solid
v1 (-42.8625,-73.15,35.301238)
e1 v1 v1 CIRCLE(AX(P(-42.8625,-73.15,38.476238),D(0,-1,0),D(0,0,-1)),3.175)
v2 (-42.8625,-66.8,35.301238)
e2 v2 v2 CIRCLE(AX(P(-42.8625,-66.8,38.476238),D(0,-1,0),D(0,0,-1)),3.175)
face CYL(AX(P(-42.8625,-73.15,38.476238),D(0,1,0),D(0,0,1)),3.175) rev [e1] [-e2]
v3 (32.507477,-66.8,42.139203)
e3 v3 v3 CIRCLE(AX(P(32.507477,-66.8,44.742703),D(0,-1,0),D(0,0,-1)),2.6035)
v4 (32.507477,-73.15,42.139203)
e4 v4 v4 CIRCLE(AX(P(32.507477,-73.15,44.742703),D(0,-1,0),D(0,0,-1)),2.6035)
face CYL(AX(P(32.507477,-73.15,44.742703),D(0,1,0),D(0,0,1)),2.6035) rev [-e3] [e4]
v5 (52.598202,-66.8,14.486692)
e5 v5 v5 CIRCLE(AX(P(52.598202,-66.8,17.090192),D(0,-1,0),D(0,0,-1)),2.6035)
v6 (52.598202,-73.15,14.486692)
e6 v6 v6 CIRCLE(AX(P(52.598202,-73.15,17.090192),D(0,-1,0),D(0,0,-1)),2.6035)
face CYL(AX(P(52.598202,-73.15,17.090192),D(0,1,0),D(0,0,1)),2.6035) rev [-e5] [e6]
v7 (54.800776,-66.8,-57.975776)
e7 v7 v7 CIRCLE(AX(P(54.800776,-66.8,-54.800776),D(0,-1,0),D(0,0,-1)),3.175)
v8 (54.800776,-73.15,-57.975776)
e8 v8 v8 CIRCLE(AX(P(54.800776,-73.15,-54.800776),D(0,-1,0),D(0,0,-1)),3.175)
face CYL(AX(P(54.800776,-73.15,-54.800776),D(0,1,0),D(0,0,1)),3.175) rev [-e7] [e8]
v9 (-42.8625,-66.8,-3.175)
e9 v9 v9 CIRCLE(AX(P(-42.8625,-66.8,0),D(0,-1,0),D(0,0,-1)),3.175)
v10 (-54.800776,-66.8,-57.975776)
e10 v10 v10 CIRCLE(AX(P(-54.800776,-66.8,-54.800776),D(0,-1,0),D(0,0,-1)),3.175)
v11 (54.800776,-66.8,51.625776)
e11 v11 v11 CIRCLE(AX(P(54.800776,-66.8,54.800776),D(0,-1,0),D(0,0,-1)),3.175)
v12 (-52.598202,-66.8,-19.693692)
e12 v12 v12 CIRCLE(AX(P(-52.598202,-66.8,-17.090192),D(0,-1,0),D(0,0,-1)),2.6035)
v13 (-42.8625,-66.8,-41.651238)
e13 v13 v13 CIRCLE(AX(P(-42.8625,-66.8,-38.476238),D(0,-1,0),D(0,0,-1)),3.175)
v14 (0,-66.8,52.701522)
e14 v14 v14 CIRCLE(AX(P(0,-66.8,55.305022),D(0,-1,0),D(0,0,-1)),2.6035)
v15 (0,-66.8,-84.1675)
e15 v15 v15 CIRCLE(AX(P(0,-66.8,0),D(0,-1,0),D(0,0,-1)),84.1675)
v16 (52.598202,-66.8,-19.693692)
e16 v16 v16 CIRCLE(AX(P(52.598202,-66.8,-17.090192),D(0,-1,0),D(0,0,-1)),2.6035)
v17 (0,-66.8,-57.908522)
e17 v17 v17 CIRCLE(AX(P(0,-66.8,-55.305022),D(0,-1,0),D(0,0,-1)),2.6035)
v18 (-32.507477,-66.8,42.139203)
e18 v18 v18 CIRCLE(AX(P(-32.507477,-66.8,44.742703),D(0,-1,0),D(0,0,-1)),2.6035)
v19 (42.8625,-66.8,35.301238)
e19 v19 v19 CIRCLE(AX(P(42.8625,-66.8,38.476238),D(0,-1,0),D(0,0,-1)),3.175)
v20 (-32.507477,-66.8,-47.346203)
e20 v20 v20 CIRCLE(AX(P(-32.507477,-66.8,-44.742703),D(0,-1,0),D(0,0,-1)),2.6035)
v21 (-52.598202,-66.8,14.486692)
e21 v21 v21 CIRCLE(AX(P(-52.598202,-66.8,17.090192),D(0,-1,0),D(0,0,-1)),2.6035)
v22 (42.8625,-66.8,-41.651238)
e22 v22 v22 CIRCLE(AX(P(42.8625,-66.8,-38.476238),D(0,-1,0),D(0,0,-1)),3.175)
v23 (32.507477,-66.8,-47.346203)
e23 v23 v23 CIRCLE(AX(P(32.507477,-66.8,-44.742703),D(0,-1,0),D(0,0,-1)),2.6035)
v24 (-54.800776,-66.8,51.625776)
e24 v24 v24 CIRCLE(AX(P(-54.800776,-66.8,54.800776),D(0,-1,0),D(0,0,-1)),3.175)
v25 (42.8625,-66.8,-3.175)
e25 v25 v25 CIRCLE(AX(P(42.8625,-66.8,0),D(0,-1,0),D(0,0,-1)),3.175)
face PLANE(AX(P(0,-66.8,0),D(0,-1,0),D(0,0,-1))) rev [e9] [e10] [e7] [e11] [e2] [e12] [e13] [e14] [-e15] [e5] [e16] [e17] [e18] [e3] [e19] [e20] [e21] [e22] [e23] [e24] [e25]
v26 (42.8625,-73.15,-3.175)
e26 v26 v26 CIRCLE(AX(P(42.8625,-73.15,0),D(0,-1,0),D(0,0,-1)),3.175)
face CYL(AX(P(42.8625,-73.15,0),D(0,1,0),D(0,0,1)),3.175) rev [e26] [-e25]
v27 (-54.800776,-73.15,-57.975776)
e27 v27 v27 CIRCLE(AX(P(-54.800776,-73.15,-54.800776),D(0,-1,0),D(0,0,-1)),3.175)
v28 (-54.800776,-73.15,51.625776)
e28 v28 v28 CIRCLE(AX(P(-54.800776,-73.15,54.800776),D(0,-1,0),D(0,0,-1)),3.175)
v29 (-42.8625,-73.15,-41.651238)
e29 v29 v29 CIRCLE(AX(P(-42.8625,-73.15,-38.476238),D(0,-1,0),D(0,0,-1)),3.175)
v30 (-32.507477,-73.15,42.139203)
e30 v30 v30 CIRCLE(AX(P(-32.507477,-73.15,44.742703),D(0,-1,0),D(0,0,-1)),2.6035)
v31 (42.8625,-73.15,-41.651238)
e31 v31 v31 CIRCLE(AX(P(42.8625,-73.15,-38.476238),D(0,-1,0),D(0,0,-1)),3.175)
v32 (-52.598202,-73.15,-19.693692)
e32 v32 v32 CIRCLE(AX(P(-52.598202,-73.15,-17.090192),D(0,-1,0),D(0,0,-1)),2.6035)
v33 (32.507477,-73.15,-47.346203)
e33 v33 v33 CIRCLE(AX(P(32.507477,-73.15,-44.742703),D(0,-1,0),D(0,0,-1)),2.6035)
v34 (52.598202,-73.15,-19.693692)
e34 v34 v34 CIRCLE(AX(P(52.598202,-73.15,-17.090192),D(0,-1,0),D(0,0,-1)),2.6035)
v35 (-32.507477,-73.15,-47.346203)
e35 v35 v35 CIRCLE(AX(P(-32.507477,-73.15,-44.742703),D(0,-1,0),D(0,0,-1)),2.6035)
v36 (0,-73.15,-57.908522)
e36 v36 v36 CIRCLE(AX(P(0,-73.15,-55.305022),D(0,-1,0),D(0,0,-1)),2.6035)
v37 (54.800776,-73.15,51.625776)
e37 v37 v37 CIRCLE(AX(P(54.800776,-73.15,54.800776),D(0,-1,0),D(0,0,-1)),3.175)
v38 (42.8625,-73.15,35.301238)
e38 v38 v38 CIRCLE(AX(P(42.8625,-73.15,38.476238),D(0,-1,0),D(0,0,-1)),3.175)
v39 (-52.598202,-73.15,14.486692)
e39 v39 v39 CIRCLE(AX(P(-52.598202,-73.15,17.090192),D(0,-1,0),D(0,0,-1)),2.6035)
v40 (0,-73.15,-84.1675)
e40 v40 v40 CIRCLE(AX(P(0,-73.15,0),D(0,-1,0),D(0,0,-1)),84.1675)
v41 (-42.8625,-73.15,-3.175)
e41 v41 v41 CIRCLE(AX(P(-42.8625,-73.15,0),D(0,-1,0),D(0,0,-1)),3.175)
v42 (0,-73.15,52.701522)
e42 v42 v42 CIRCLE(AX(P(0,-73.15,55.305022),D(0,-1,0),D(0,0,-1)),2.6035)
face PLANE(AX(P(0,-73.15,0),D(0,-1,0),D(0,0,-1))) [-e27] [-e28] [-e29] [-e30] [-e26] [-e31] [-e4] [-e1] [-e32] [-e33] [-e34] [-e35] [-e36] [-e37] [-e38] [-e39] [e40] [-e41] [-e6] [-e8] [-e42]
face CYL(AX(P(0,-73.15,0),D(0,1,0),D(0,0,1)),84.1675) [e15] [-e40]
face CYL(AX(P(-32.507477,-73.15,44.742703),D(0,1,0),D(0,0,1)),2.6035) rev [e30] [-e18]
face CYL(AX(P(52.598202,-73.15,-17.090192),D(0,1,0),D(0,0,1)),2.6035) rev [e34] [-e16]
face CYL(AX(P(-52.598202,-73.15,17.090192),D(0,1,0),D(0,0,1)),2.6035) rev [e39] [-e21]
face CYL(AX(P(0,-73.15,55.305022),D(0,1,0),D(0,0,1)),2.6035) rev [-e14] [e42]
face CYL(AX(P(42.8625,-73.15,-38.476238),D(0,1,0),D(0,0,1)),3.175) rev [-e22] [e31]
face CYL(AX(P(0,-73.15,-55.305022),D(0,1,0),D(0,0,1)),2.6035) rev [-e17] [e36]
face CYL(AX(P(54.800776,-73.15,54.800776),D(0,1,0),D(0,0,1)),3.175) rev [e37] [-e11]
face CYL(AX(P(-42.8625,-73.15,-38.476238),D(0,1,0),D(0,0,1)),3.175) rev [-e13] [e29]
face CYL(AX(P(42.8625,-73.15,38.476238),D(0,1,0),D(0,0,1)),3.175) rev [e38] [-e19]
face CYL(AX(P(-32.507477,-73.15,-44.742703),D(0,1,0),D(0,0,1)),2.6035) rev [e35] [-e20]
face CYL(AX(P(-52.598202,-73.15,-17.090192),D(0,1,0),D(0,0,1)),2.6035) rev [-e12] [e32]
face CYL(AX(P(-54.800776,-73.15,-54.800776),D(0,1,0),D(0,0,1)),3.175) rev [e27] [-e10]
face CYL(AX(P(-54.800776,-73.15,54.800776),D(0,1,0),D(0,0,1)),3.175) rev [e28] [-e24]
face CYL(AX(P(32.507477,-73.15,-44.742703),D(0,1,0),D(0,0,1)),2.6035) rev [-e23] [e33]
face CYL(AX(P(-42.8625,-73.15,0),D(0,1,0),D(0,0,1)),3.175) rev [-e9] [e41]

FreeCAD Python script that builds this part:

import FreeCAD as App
import Part
import Sketcher
from FreeCAD import Vector
Q = App.Units.Quantity

doc = App.newDocument("Part")
body = doc.addObject("PartDesign::Body", "Body")

# Sketch on XZ plane
sketch1 = body.newObject("Sketcher::SketchObject", "Sketch")
sketch1.AttachmentSupport = (doc.getObject("XZ_Plane"), [""])
sketch1.MapMode = "FlatFace"
sketch1.AttachmentOffset = App.Placement(Vector(0, 0, 66.8), App.Rotation())
sketch1.addGeometry([
    Part.Circle(Vector(0, 0, 0), Vector(0, 0, 1), 84.1675),  # 0
    Part.Circle(Vector(-54.800776, 54.800776, 0), Vector(0, 0, 1), 3.175),  # 1
    Part.Circle(Vector(-32.507477, 44.742703, 0), Vector(0, 0, 1), 2.6035),  # 2
    Part.Circle(Vector(-42.8625, 38.476238, 0), Vector(0, 0, 1), 3.175),  # 3
    Part.Circle(Vector(-52.598202, 17.090192, 0), Vector(0, 0, 1), 2.6035),  # 4
    Part.Circle(Vector(0, 55.305022, 0), Vector(0, 0, 1), 2.6035),  # 5
    Part.Circle(Vector(-52.598202, -17.090192, 0), Vector(0, 0, 1), 2.6035),  # 6
    Part.Circle(Vector(-42.8625, 0, 0), Vector(0, 0, 1), 3.175),  # 7
    Part.Circle(Vector(-54.800776, -54.800776, 0), Vector(0, 0, 1), 3.175),  # 8
    Part.Circle(Vector(-42.8625, -38.476238, 0), Vector(0, 0, 1), 3.175),  # 9
    Part.Circle(Vector(-32.507477, -44.742703, 0), Vector(0, 0, 1), 2.6035),  # 10
    Part.Circle(Vector(32.507477, 44.742703, 0), Vector(0, 0, 1), 2.6035),  # 11
    Part.Circle(Vector(42.8625, 38.476238, 0), Vector(0, 0, 1), 3.175),  # 12
    Part.Circle(Vector(54.800776, 54.800776, 0), Vector(0, 0, 1), 3.175),  # 13
    Part.Circle(Vector(42.8625, 0, 0), Vector(0, 0, 1), 3.175),  # 14
    Part.Circle(Vector(52.598202, 17.090192, 0), Vector(0, 0, 1), 2.6035),  # 15
    Part.Circle(Vector(0, -55.305022, 0), Vector(0, 0, 1), 2.6035),  # 16
    Part.Circle(Vector(52.598202, -17.090192, 0), Vector(0, 0, 1), 2.6035),  # 17
    Part.Circle(Vector(42.8625, -38.476238, 0), Vector(0, 0, 1), 3.175),  # 18
    Part.Circle(Vector(32.507477, -44.742703, 0), Vector(0, 0, 1), 2.6035),  # 19
    Part.Circle(Vector(54.800776, -54.800776, 0), Vector(0, 0, 1), 3.175),  # 20
], False)
sketch1.addConstraint([
    Sketcher.Constraint("Coincident", 0, 3, -1, 1),
    Sketcher.Constraint("Equal", 1, 3),
    Sketcher.Constraint("Equal", 2, 4),
    Sketcher.Constraint("Equal", 4, 5),
    Sketcher.Constraint("Equal", 5, 6),
    Sketcher.Constraint("Equal", 3, 7),
    Sketcher.Constraint("Equal", 7, 8),
    Sketcher.Constraint("Equal", 8, 9),
    Sketcher.Constraint("Equal", 6, 10),
    Sketcher.Constraint("Equal", 10, 11),
    Sketcher.Constraint("Equal", 9, 12),
    Sketcher.Constraint("Equal", 12, 13),
    Sketcher.Constraint("Equal", 13, 14),
    Sketcher.Constraint("Equal", 11, 15),
    Sketcher.Constraint("Equal", 15, 16),
    Sketcher.Constraint("Equal", 16, 17),
    Sketcher.Constraint("Equal", 14, 18),
    Sketcher.Constraint("Equal", 17, 19),
    Sketcher.Constraint("Equal", 18, 20),
    Sketcher.Constraint("Symmetric", 10, 3, 11, 3, -1, 1),
    Sketcher.Constraint("Symmetric", 9, 3, 12, 3, -1, 1),
    Sketcher.Constraint("Symmetric", 8, 3, 13, 3, -1, 1),
    Sketcher.Constraint("Symmetric", 7, 3, 14, 3, -1, 1),
    Sketcher.Constraint("Symmetric", 6, 3, 15, 3, -1, 1),
    Sketcher.Constraint("Symmetric", 5, 3, 16, 3, -1, 1),
    Sketcher.Constraint("Symmetric", 4, 3, 17, 3, -1, 1),
    Sketcher.Constraint("Symmetric", 3, 3, 18, 3, -1, 1),
    Sketcher.Constraint("Symmetric", 2, 3, 19, 3, -1, 1),
    Sketcher.Constraint("Symmetric", 1, 3, 20, 3, -1, 1),
    Sketcher.Constraint("Symmetric", 2, 3, 11, 3, -2),
    Sketcher.Constraint("Symmetric", 3, 3, 12, 3, -2),
    Sketcher.Constraint("Symmetric", 1, 3, 13, 3, -2),
    Sketcher.Constraint("Symmetric", 4, 3, 15, 3, -2),
    Sketcher.Constraint("PointOnObject", 5, 3, -2),
    Sketcher.Constraint("PointOnObject", 7, 3, -1),
    Sketcher.Constraint("Vertical", 3, 3, 7, 3),
    Sketcher.Constraint("Diameter", 1, Q("0.25 in")),
    Sketcher.Constraint("Diameter", 2, Q("0.205 in")),
    Sketcher.Constraint("Diameter", 0, Q("168.335 mm")),
    Sketcher.Constraint("DistanceX", 3, 3, -1, 1, Q("1.6875 in")),
    Sketcher.Constraint("DistanceX", 4, 3, -1, 1, Q("52.598202 mm")),
    Sketcher.Constraint("DistanceX", 1, 3, 2, 3, Q("22.293299 mm")),
    Sketcher.Constraint("DistanceY", -1, 1, 3, 3, Q("38.476238 mm")),
    Sketcher.Constraint("DistanceY", -1, 1, 4, 3, Q("17.090192 mm")),
    Sketcher.Constraint("DistanceY", 4, 3, 2, 3, Q("27.652511 mm")),
    Sketcher.Constraint("DistanceY", 2, 3, 5, 3, Q("10.562319 mm")),
    Sketcher.Constraint("DistanceX", 1, 3, -1, 1, Q("54.800776 mm")),
    Sketcher.Constraint("DistanceY", -1, 1, 1, 3, Q("54.800776 mm")),
])
pad1 = body.newObject("PartDesign::Pad", "Pad")
pad1.Profile = sketch1
pad1.Length = Q("0.25 in")

doc.recompute()
